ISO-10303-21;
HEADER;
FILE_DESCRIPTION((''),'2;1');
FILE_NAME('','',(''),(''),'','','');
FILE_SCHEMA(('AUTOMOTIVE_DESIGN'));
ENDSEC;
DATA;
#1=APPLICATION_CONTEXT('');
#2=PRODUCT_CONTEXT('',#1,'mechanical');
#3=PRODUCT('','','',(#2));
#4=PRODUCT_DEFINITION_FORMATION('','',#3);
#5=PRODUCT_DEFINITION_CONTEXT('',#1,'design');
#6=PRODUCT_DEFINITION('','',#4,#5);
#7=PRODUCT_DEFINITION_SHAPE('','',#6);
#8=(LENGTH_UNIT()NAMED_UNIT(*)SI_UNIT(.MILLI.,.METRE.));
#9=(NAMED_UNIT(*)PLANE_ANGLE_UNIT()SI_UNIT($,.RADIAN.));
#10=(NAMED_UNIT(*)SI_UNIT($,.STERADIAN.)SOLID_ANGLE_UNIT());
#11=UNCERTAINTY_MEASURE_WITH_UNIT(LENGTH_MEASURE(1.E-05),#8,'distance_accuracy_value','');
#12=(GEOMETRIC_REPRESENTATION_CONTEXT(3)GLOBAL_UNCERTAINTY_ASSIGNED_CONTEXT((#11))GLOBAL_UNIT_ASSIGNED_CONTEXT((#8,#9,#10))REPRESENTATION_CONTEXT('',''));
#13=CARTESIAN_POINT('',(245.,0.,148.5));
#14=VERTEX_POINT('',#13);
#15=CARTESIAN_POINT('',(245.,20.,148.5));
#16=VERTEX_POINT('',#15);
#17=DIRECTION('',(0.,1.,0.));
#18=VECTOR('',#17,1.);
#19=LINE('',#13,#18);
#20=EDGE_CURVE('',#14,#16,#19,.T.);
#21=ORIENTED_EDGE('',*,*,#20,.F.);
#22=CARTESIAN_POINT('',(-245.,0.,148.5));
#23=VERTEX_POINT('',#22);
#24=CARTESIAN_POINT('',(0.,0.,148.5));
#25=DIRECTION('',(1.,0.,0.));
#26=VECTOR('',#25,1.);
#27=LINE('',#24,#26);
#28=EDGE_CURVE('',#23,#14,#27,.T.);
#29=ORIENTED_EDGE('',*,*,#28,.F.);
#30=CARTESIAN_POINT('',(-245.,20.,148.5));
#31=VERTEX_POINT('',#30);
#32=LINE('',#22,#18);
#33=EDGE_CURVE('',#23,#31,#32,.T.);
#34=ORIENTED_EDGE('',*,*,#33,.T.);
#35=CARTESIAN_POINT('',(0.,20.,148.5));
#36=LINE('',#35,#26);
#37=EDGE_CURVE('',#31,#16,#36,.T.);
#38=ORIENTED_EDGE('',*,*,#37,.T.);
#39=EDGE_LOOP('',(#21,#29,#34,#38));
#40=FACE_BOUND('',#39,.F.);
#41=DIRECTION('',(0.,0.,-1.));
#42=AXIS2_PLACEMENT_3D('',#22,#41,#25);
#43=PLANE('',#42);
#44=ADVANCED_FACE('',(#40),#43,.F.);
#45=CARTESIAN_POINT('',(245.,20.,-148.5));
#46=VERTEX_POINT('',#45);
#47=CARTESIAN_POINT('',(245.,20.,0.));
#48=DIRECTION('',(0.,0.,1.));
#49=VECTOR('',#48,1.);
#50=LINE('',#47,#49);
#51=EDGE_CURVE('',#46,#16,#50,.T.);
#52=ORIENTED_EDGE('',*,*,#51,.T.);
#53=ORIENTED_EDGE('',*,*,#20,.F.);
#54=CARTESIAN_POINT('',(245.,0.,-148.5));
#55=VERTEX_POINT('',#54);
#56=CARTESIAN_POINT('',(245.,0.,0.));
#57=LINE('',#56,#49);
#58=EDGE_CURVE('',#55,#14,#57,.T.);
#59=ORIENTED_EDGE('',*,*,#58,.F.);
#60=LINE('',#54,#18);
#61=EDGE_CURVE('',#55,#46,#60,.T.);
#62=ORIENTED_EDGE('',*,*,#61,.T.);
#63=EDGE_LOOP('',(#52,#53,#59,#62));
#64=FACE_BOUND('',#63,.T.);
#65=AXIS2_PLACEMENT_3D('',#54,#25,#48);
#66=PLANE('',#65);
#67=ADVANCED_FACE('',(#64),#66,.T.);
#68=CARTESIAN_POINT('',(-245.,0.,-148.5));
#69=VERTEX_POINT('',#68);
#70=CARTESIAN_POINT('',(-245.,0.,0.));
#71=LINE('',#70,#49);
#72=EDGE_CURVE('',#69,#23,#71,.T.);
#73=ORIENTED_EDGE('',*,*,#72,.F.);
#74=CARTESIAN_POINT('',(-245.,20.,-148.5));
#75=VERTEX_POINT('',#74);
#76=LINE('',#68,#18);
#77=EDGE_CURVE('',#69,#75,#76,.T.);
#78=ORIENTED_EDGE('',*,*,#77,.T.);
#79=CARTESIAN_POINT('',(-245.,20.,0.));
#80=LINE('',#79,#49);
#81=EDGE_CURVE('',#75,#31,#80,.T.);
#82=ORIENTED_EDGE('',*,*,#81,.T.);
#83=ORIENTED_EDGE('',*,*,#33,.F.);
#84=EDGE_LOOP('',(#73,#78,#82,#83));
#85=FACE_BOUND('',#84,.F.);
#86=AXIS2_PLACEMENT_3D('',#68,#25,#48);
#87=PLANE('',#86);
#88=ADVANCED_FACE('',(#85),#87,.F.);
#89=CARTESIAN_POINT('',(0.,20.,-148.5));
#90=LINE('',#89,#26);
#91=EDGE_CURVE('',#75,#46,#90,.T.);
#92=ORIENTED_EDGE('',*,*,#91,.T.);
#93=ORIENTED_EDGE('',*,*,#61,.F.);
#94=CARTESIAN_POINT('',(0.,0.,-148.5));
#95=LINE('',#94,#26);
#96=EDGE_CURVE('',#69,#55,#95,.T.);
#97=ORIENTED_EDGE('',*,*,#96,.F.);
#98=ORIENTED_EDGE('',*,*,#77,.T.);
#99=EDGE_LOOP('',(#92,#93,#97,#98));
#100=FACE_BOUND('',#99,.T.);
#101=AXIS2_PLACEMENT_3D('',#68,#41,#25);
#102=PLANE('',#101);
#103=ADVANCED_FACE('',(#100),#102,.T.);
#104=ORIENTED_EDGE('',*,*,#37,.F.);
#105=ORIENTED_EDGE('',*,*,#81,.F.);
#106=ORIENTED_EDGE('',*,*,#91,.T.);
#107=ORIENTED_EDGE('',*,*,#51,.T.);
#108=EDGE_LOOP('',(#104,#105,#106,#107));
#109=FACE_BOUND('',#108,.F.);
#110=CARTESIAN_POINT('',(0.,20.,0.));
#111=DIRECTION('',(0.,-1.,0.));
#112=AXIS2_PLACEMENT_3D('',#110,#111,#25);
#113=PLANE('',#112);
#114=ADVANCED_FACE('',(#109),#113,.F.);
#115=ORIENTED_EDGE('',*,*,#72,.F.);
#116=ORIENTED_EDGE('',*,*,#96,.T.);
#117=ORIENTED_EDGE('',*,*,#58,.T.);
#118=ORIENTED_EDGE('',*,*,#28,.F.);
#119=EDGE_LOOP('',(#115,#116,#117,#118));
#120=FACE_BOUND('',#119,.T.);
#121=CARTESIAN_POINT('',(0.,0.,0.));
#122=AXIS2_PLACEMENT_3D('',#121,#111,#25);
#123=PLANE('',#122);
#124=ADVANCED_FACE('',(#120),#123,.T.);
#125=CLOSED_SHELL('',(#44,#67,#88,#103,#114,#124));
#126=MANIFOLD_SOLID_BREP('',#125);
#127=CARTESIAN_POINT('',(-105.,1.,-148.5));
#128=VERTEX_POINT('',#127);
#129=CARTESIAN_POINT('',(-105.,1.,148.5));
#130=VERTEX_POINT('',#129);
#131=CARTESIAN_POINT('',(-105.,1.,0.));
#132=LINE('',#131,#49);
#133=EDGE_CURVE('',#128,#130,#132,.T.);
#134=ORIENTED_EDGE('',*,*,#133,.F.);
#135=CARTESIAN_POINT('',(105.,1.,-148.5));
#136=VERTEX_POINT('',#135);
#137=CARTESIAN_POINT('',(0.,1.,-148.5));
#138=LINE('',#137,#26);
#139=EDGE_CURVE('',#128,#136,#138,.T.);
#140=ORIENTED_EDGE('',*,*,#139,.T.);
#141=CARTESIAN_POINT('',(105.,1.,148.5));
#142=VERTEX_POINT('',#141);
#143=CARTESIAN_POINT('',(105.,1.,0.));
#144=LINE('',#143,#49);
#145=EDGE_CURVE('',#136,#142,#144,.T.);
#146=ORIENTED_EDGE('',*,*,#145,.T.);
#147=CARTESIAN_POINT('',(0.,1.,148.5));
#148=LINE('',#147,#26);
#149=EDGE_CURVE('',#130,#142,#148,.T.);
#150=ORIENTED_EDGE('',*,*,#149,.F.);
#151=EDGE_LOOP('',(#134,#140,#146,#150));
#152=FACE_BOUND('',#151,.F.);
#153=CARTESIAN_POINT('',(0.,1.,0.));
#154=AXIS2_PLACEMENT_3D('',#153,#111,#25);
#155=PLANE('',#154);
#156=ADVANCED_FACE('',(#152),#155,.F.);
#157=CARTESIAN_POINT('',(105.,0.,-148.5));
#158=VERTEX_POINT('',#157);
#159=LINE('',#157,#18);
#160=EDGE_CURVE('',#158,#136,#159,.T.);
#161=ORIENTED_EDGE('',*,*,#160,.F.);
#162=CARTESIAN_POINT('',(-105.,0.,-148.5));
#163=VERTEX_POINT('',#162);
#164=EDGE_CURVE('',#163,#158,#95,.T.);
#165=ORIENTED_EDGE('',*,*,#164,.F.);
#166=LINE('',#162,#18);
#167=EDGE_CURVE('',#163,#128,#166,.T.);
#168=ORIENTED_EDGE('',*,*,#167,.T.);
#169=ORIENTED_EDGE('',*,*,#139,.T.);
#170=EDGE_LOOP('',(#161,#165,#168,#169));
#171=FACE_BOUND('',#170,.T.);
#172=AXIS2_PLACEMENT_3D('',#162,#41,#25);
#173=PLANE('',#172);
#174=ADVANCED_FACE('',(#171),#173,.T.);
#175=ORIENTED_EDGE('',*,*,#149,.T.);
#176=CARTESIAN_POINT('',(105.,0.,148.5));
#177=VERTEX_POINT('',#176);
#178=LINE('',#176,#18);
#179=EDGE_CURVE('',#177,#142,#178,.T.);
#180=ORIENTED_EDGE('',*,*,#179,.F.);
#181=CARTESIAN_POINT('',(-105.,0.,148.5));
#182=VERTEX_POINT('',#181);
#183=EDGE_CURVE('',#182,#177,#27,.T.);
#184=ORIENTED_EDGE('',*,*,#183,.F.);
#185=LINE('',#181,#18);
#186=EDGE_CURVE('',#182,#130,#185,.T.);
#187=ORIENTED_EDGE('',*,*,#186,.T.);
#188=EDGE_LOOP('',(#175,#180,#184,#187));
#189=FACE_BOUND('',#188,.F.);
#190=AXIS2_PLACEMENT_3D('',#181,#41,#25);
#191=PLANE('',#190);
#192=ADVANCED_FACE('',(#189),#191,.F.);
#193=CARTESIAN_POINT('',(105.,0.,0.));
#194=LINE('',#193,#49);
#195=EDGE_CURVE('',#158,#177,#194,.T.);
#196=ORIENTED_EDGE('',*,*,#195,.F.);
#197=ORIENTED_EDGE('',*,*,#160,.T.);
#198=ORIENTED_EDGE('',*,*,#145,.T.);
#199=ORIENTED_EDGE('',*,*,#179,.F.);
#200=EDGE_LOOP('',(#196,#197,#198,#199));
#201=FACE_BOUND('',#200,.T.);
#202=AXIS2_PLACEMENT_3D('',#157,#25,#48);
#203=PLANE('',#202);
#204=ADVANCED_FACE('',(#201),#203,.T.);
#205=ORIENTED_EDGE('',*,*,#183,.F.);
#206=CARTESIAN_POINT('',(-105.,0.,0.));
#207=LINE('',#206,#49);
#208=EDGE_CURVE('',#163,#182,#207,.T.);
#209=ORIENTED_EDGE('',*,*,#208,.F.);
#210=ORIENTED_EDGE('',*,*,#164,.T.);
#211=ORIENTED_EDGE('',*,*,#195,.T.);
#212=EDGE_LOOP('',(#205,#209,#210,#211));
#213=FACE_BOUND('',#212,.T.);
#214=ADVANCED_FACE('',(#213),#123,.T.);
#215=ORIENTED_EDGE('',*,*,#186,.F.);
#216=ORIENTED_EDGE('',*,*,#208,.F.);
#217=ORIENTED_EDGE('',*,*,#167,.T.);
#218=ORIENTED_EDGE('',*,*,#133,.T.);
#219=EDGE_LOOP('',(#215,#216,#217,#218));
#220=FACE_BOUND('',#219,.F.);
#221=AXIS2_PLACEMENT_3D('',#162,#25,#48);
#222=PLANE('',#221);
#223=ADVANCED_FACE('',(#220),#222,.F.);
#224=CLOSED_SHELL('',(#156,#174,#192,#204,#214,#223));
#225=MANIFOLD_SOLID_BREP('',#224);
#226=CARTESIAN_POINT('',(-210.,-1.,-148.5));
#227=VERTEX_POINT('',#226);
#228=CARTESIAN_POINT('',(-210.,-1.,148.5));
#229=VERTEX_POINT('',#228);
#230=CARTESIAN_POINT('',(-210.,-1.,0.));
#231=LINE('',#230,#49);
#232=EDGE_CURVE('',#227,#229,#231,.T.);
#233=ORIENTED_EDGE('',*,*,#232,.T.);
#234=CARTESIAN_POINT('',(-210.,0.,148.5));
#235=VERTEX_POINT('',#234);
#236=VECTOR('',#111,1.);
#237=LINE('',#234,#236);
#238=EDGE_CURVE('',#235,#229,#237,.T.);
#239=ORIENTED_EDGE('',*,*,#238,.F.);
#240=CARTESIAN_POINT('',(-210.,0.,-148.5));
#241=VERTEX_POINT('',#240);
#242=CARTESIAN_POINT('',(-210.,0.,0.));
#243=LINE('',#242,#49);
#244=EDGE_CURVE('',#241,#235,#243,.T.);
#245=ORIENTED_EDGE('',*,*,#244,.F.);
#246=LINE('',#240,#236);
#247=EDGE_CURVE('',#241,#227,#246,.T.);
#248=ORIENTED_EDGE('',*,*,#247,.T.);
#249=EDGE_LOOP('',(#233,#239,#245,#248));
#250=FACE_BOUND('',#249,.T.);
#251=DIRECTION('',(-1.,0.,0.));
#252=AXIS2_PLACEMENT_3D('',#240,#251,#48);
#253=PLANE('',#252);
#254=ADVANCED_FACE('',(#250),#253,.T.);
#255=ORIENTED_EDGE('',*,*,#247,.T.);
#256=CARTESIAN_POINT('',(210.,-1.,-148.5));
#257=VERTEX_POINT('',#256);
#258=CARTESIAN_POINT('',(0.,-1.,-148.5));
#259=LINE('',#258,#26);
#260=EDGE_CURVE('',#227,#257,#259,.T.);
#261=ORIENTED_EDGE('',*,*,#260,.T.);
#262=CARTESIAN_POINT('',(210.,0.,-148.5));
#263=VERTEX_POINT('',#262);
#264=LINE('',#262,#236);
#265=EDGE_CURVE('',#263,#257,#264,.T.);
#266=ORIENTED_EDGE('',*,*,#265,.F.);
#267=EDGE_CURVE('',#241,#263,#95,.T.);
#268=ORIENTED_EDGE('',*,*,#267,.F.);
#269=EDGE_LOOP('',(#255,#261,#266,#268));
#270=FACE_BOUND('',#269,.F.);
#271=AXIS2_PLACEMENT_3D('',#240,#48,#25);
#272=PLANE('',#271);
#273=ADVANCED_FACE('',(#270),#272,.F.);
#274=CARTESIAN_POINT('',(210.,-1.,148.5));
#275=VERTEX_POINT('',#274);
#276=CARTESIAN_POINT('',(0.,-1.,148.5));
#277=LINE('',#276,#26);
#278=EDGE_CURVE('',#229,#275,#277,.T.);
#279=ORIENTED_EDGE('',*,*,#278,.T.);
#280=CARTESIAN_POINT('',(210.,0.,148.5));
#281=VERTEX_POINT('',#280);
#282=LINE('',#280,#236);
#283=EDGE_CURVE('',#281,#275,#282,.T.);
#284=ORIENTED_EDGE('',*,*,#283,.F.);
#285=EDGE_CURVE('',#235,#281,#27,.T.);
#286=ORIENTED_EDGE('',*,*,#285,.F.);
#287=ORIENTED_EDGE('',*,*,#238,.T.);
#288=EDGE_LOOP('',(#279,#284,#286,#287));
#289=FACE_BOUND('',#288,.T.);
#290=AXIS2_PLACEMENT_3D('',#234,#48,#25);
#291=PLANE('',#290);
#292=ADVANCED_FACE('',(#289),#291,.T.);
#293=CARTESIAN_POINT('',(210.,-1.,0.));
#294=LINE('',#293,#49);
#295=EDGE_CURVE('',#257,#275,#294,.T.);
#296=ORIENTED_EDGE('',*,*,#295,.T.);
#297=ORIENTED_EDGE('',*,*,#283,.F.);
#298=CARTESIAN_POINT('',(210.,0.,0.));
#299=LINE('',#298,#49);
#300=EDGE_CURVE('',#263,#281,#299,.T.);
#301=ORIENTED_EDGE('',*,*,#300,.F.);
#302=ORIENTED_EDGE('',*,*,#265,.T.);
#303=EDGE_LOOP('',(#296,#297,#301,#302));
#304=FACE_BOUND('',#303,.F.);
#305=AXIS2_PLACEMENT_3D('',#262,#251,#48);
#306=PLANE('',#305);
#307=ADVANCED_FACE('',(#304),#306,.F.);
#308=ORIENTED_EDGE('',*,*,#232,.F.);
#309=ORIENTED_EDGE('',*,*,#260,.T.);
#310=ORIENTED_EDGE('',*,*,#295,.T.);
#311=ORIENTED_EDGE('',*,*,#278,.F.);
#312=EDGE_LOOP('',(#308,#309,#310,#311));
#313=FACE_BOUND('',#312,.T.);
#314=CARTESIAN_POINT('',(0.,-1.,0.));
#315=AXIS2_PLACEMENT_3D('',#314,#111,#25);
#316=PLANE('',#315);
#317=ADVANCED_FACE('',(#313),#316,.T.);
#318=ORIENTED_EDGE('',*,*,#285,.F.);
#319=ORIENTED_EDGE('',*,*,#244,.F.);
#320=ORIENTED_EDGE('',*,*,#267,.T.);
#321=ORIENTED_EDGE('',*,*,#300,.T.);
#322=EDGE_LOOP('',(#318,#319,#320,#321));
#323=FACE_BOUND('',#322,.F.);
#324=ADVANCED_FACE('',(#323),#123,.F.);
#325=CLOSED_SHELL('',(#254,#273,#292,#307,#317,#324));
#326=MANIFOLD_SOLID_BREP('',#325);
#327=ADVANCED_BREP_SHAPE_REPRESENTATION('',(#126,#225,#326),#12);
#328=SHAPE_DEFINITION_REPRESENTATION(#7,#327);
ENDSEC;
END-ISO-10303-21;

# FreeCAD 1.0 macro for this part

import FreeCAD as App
import Part
import Sketcher
Q = App.Units.Quantity

doc = App.newDocument("Part")
body = doc.addObject("PartDesign::Body", "Body")

# Sketch on XZ plane
sketch1 = doc.addObject("Sketcher::SketchObject", "Sketch")
body.addObject(sketch1)
sketch1.AttachmentSupport = (doc.XZ_Plane, [""])
sketch1.MapMode = "FlatFace"
sketch1.addGeometry(Part.LineSegment(App.Vector(-245, 148, 0), App.Vector(-245, -148, 0)), False)
sketch1.addGeometry(Part.LineSegment(App.Vector(-245, -148, 0), App.Vector(245, -148, 0)), False)
sketch1.addGeometry(Part.LineSegment(App.Vector(245, -148, 0), App.Vector(245, 148, 0)), False)
sketch1.addGeometry(Part.LineSegment(App.Vector(245, 148, 0), App.Vector(-245, 148, 0)), False)
sketch1.addConstraint(Sketcher.Constraint("Coincident", 0, 2, 1, 1))
sketch1.addConstraint(Sketcher.Constraint("Coincident", 1, 2, 2, 1))
sketch1.addConstraint(Sketcher.Constraint("Coincident", 2, 2, 3, 1))
sketch1.addConstraint(Sketcher.Constraint("Coincident", 3, 2, 0, 1))
sketch1.addConstraint(Sketcher.Constraint("Vertical", 0))
sketch1.addConstraint(Sketcher.Constraint("Horizontal", 1))
sketch1.addConstraint(Sketcher.Constraint("Vertical", 2))
sketch1.addConstraint(Sketcher.Constraint("Horizontal", 3))
sketch1.addConstraint(Sketcher.Constraint("Symmetric", 0, 2, 2, 2, -1, 1))
sketch1.addConstraint(Sketcher.Constraint("DistanceX", 1, 1, 1, 2, Q("490 mm")))
sketch1.addConstraint(Sketcher.Constraint("DistanceY", 0, 2, 0, 1, Q("297 mm")))
pad1 = doc.addObject("PartDesign::Pad", "Pad")
body.addObject(pad1)
pad1.Profile = sketch1
pad1.Length = 20
pad1.Reversed = True
body2 = doc.addObject("PartDesign::Body", "Body001")

# Sketch on XZ plane
sketch2 = doc.addObject("Sketcher::SketchObject", "Sketch001")
body2.addObject(sketch2)
sketch2.AttachmentSupport = (doc.getObject("XZ_Plane001"), [""])
sketch2.MapMode = "FlatFace"
sketch2.addGeometry(Part.LineSegment(App.Vector(-105, 148, 0), App.Vector(-105, -148, 0)), False)
sketch2.addGeometry(Part.LineSegment(App.Vector(-105, -148, 0), App.Vector(105, -148, 0)), False)
sketch2.addGeometry(Part.LineSegment(App.Vector(105, -148, 0), App.Vector(105, 148, 0)), False)
sketch2.addGeometry(Part.LineSegment(App.Vector(105, 148, 0), App.Vector(-105, 148, 0)), False)
sketch2.addConstraint(Sketcher.Constraint("Coincident", 0, 2, 1, 1))
sketch2.addConstraint(Sketcher.Constraint("Coincident", 1, 2, 2, 1))
sketch2.addConstraint(Sketcher.Constraint("Coincident", 2, 2, 3, 1))
sketch2.addConstraint(Sketcher.Constraint("Coincident", 3, 2, 0, 1))
sketch2.addConstraint(Sketcher.Constraint("Vertical", 0))
sketch2.addConstraint(Sketcher.Constraint("Horizontal", 1))
sketch2.addConstraint(Sketcher.Constraint("Vertical", 2))
sketch2.addConstraint(Sketcher.Constraint("Horizontal", 3))
sketch2.addConstraint(Sketcher.Constraint("Symmetric", 0, 2, 2, 2, -1, 1))
sketch2.addConstraint(Sketcher.Constraint("DistanceX", 1, 1, 1, 2, Q("210 mm")))
sketch2.addConstraint(Sketcher.Constraint("DistanceY", 0, 2, 0, 1, Q("297 mm")))
pad2 = doc.addObject("PartDesign::Pad", "Pad001")
body2.addObject(pad2)
pad2.Profile = sketch2
pad2.Length = 1
pad2.Reversed = True
body3 = doc.addObject("PartDesign::Body", "Body002")

# Sketch on XZ plane
sketch3 = doc.addObject("Sketcher::SketchObject", "Sketch002")
body3.addObject(sketch3)
sketch3.AttachmentSupport = (doc.getObject("XZ_Plane002"), [""])
sketch3.MapMode = "FlatFace"
sketch3.addGeometry(Part.LineSegment(App.Vector(-210, 148, 0), App.Vector(-210, -148, 0)), False)
sketch3.addGeometry(Part.LineSegment(App.Vector(-210, -148, 0), App.Vector(210, -148, 0)), False)
sketch3.addGeometry(Part.LineSegment(App.Vector(210, -148, 0), App.Vector(210, 148, 0)), False)
sketch3.addGeometry(Part.LineSegment(App.Vector(210, 148, 0), App.Vector(-210, 148, 0)), False)
sketch3.addConstraint(Sketcher.Constraint("Coincident", 0, 2, 1, 1))
sketch3.addConstraint(Sketcher.Constraint("Coincident", 1, 2, 2, 1))
sketch3.addConstraint(Sketcher.Constraint("Coincident", 2, 2, 3, 1))
sketch3.addConstraint(Sketcher.Constraint("Coincident", 3, 2, 0, 1))
sketch3.addConstraint(Sketcher.Constraint("Vertical", 0))
sketch3.addConstraint(Sketcher.Constraint("Horizontal", 1))
sketch3.addConstraint(Sketcher.Constraint("Vertical", 2))
sketch3.addConstraint(Sketcher.Constraint("Horizontal", 3))
sketch3.addConstraint(Sketcher.Constraint("Symmetric", 0, 2, 2, 2, -1, 1))
sketch3.addConstraint(Sketcher.Constraint("DistanceX", 1, 1, 1, 2, Q("420 mm")))
sketch3.addConstraint(Sketcher.Constraint("DistanceY", 0, 2, 0, 1, Q("297 mm")))
pad3 = doc.addObject("PartDesign::Pad", "Pad002")
body3.addObject(pad3)
pad3.Profile = sketch3
pad3.Length = 1

doc.recompute()
